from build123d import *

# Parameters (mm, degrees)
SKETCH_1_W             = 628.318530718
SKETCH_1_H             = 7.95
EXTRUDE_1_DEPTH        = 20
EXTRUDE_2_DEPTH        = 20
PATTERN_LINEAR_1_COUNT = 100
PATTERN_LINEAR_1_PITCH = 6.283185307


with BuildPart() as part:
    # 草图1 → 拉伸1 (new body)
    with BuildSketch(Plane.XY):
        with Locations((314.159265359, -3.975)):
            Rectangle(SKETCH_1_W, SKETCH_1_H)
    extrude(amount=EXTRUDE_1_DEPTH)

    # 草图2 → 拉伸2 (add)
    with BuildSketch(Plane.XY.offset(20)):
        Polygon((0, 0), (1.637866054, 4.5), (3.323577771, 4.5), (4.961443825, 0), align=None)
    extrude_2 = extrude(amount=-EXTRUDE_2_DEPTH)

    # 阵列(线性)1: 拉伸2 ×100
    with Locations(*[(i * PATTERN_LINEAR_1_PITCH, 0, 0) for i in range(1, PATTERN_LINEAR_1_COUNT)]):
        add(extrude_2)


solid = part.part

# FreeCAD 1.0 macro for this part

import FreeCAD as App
import Part
import Sketcher

V = App.Vector
Q = App.Units.Quantity


def add_polygon(sketch, points):
    """Adds a closed chain of lines whose ends are joined by coincident constraints."""
    first, n = sketch.GeometryCount, len(points)
    for a, b in zip(points, points[1:] + points[:1]):
        sketch.addGeometry(Part.LineSegment(App.Vector(*a, 0), App.Vector(*b, 0)), False)
    for i in range(n):
        sketch.addConstraint(Sketcher.Constraint("Coincident", first + i, 2, first + (i + 1) % n, 1))

doc = App.newDocument("Part")
body = doc.addObject("PartDesign::Body", "Body")

sketch1 = body.newObject("Sketcher::SketchObject", "Sketch")
sketch1.AttachmentSupport = (doc.getObject("XY_Plane"), [""])
sketch1.MapMode = "FlatFace"
add_polygon(sketch1, [(0, 0), (0, -7.95), (628.318531, -7.95), (628.318531, 0)])
sketch1.addConstraint([
    Sketcher.Constraint("Vertical", 0),
    Sketcher.Constraint("Horizontal", 1),
    Sketcher.Constraint("Vertical", 2),
    Sketcher.Constraint("Horizontal", 3),
    Sketcher.Constraint("Coincident", 3, 2, -1, 1),
    Sketcher.Constraint("DistanceY", 0, 2, 0, 1, 7.95),
    Sketcher.Constraint("DistanceX", 1, 1, 1, 2, 628.318531),
])
pad1 = body.newObject("PartDesign::Pad", "Pad")
pad1.Profile = sketch1
pad1.Length = 20

sketch2 = body.newObject("Sketcher::SketchObject", "Sketch001")
sketch2.AttachmentSupport = (doc.getObject("XY_Plane"), [""])
sketch2.MapMode = "FlatFace"
sketch2.AttachmentOffset = App.Placement(V(0, 0, 20), App.Rotation())
add_polygon(sketch2, [(1.637866, 4.5), (0, 0), (4.961444, 0), (3.323578, 4.5)])
sketch2.addConstraint([
    Sketcher.Constraint("Horizontal", 1),
    Sketcher.Constraint("Horizontal", 3),
    Sketcher.Constraint("Coincident", 0, 2, -1, 1),
    Sketcher.Constraint("Equal", 0, 2),
    Sketcher.Constraint("Angle", 0, Q("-110 deg")),
    Sketcher.Constraint("DistanceY", -1, 1, 2, 2, 4.5),
    Sketcher.Constraint("DistanceX", 3, 2, 3, 1, 1.685712),
])
pad2 = body.newObject("PartDesign::Pad", "Pad001")
pad2.Profile = sketch2
pad2.Length = 20
pad2.Reversed = True
doc.recompute()

linearpattern = body.newObject("PartDesign::LinearPattern", "LinearPattern")
linearpattern.Originals = [pad2]
linearpattern.Direction = (doc.getObject("X_Axis"), [""])
linearpattern.Mode = "offset"
linearpattern.Offset = 6.283185
linearpattern.Occurrences = 100
body.Tip = linearpattern

doc.recompute()
